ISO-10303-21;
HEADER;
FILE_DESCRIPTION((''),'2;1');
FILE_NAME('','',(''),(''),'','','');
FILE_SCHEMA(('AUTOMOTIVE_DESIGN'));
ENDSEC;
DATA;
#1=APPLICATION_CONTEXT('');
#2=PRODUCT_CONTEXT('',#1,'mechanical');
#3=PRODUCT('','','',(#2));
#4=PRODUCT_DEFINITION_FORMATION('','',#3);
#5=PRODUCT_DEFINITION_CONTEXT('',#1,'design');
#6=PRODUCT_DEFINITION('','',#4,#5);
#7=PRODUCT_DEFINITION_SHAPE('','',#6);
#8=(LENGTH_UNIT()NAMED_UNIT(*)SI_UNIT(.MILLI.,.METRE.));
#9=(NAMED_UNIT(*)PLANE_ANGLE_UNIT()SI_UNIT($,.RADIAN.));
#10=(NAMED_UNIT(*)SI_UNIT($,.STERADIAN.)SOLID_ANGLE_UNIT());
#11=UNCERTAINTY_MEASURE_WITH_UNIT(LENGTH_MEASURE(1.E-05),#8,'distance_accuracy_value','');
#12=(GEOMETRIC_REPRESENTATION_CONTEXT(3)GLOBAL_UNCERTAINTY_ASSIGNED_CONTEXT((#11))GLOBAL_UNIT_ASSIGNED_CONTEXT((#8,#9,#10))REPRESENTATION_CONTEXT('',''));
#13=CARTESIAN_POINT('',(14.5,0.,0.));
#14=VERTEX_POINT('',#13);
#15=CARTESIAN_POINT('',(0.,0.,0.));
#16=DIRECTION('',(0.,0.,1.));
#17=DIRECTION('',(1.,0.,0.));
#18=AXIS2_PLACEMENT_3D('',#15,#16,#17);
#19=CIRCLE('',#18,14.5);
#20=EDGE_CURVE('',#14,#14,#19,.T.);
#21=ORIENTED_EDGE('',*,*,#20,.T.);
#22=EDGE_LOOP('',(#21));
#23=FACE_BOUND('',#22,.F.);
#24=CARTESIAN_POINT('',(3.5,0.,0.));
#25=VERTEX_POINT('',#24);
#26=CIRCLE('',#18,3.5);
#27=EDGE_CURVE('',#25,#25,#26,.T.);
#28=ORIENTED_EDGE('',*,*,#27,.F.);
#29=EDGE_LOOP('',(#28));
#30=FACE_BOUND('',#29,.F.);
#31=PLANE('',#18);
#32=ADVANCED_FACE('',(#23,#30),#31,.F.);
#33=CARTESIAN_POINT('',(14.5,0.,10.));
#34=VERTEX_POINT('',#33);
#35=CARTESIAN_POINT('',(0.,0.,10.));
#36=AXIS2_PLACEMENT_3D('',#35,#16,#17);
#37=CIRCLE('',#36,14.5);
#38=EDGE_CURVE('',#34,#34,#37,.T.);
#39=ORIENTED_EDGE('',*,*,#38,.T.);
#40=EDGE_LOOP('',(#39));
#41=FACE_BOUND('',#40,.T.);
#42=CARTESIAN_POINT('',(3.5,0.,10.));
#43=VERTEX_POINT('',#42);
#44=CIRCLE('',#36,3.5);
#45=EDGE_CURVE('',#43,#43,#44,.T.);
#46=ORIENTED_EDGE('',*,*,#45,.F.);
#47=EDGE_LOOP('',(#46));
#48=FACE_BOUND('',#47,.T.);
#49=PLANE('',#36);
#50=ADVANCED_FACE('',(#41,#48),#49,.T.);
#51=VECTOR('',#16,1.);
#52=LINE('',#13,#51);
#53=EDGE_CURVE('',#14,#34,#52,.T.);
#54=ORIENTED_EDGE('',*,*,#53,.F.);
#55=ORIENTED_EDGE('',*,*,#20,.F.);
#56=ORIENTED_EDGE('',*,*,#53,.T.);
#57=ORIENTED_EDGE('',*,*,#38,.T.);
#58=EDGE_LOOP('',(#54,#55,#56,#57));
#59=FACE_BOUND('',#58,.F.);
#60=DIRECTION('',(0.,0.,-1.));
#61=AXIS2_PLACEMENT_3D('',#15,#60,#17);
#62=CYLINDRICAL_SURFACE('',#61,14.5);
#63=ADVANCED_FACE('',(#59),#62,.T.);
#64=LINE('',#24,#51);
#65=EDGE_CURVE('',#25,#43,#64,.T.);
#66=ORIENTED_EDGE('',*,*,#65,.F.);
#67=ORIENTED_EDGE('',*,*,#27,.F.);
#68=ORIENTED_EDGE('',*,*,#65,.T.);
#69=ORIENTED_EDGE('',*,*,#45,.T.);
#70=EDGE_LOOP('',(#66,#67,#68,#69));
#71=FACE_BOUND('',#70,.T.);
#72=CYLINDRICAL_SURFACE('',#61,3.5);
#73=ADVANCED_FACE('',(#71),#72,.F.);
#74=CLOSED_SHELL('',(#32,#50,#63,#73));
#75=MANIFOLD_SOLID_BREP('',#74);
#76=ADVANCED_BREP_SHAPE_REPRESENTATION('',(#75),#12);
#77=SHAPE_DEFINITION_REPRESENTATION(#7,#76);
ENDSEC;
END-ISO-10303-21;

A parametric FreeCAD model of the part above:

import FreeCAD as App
import Part
import Sketcher

V = App.Vector
Q = App.Units.Quantity

doc = App.newDocument("Part")
params = doc.addObject("Spreadsheet::Sheet", "Params")
for row, (alias, value) in enumerate([
    ("sketch1_diameter", "29 mm"),
    ("sketch1_diameter2", "7 mm"),
    ("pad1_length", "10 mm"),
], start=1):
    params.set(f"A{row}", alias)
    params.set(f"B{row}", "=" + value)
    params.setAlias(f"B{row}", alias)

body = doc.addObject("PartDesign::Body", "Body")

# Sketch on XY plane
sketch1 = body.newObject("Sketcher::SketchObject", "Sketch")
sketch1.AttachmentSupport = (doc.getObject("XY_Plane"), [""])
sketch1.MapMode = "FlatFace"
sketch1.addGeometry([
    Part.Circle(V(0, 0, 0), V(0, 0, 1), 14.5),
    Part.Circle(V(0, 0, 0), V(0, 0, 1), 3.5),
], False)
sketch1.addConstraint([
    Sketcher.Constraint("Coincident", 0, 3, -1, 1),
    Sketcher.Constraint("Coincident", 1, 3, -1, 1),
    Sketcher.Constraint("Diameter", 0, Q("29 mm")),
    Sketcher.Constraint("Diameter", 1, Q("7 mm")),
])
sketch1.setExpression("Constraints[2]", "Params.sketch1_diameter")
sketch1.setExpression("Constraints[3]", "Params.sketch1_diameter2")
pad1 = body.newObject("PartDesign::Pad", "Pad")
pad1.Profile = sketch1
pad1.setExpression("Length", "Params.pad1_length")

doc.recompute()
